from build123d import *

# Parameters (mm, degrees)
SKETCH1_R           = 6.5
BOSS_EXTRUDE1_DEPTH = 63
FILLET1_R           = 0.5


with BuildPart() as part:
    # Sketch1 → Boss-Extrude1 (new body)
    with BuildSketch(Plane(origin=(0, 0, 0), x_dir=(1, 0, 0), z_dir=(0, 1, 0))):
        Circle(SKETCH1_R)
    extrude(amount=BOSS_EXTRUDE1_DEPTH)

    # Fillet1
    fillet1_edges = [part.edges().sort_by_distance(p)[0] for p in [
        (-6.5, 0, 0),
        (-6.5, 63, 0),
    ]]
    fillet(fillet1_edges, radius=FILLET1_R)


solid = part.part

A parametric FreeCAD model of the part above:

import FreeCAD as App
import Part
import Sketcher
from FreeCAD import Vector


def edges_at(feature, points):
    """Names of the edges that pass closest to the given points."""
    edges = feature.Shape.Edges
    near = lambda p: min(range(len(edges)), key=lambda i: edges[i].distToShape(Part.Vertex(*p))[0])
    return sorted({f"Edge{near(p) + 1}" for p in points})

doc = App.newDocument("Part")
body = doc.addObject("PartDesign::Body", "Body")

sketch1 = doc.addObject("Sketcher::SketchObject", "Sketch")
body.addObject(sketch1)
sketch1.AttachmentSupport = (doc.XZ_Plane, [""])
sketch1.MapMode = "FlatFace"
sketch1.addGeometry(Part.Circle(Vector(0, 0, 0), Vector(0, 0, 1), 6), False)
sketch1.addConstraint(Sketcher.Constraint("Coincident", 0, 3, -1, 1))
sketch1.addConstraint(Sketcher.Constraint("Diameter", 0, 13.0))
pad1 = doc.addObject("PartDesign::Pad", "Pad")
body.addObject(pad1)
pad1.Profile = sketch1
pad1.Length = 63
pad1.Reversed = True
doc.recompute()

fillet = doc.addObject("PartDesign::Fillet", "Fillet")
body.addObject(fillet)
fillet.Base = (pad1, edges_at(pad1, [(-6.5, 0, 0), (-6.5, 63, 0)]))
fillet.Radius = 0.5

doc.recompute()
